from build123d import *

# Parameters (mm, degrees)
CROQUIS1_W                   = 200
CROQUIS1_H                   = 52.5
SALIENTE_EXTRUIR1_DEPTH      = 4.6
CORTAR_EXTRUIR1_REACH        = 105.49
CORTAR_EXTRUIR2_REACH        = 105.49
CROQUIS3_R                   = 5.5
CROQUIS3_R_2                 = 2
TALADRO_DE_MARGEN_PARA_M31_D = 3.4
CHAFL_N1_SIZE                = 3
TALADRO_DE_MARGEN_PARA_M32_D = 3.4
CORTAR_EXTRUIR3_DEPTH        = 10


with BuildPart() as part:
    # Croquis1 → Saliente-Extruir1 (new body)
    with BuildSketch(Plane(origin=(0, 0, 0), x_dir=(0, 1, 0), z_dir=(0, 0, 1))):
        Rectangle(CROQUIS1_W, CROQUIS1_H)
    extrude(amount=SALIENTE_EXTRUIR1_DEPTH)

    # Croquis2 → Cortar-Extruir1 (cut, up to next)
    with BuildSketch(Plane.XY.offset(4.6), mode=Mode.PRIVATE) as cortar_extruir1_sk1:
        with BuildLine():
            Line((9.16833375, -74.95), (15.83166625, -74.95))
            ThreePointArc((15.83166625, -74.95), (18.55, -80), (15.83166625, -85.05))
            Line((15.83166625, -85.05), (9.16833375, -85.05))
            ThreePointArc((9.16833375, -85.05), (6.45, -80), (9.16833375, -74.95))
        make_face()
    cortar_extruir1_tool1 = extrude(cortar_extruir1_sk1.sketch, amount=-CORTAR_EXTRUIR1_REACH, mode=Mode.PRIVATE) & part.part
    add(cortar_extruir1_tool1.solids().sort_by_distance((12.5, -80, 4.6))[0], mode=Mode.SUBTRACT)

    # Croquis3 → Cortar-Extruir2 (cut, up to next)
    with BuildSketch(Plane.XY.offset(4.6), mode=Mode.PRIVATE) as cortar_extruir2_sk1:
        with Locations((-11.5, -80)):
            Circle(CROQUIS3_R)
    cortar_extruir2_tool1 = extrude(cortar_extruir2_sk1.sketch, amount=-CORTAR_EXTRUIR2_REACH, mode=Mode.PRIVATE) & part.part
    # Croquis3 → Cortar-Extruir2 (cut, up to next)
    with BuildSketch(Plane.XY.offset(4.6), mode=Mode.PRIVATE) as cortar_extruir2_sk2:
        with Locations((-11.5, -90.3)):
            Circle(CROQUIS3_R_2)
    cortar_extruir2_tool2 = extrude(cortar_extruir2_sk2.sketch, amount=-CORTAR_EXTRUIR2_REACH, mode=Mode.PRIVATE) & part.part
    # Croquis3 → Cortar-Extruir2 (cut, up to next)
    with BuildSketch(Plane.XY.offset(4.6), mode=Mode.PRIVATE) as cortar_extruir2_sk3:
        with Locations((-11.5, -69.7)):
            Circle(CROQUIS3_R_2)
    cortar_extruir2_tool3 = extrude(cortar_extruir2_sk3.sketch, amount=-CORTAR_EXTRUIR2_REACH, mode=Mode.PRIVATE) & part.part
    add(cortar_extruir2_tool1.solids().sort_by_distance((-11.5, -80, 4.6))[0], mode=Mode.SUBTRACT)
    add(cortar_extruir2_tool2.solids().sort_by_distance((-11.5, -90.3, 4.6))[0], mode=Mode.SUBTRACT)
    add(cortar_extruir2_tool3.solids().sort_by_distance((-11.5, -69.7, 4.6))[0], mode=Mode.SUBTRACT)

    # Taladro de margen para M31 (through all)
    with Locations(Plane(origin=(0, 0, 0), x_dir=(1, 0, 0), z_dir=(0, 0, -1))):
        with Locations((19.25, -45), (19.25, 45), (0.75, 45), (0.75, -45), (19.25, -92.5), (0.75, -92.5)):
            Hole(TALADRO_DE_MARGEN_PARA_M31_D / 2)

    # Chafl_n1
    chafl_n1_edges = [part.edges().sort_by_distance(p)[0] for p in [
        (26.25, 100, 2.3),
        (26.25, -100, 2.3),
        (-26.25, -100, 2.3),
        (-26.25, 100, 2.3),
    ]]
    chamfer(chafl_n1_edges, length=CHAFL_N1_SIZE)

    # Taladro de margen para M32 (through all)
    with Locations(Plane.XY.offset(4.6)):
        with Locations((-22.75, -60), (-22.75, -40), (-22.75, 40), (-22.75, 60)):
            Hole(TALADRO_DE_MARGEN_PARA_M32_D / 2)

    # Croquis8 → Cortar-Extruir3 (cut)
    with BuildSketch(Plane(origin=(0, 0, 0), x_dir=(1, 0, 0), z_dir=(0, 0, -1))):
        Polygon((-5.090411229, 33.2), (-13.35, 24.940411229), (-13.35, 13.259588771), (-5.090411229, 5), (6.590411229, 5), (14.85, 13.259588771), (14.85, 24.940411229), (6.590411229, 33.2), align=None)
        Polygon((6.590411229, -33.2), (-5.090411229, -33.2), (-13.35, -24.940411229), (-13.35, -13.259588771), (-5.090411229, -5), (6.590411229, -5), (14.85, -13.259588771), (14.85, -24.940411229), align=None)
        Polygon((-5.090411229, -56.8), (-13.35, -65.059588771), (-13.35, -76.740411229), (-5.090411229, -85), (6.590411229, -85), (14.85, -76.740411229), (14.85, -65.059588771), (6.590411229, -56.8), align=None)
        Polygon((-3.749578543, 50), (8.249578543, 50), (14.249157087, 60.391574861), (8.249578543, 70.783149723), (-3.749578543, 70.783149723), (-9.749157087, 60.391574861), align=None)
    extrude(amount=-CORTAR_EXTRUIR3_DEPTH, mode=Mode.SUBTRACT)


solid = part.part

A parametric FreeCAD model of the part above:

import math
import FreeCAD as App
import Part
import Sketcher
Q = App.Units.Quantity


def edges_at(feature, points):
    """Names of the edges that pass closest to the given points."""
    edges = feature.Shape.Edges
    near = lambda p: min(range(len(edges)), key=lambda i: edges[i].distToShape(Part.Vertex(*p))[0])
    return sorted({f"Edge{near(p) + 1}" for p in points})


def add_polygon(sketch, points):
    """Adds a closed chain of lines whose ends are joined by coincident constraints."""
    first, n = sketch.GeometryCount, len(points)
    for a, b in zip(points, points[1:] + points[:1]):
        sketch.addGeometry(Part.LineSegment(App.Vector(*a, 0), App.Vector(*b, 0)), False)
    for i in range(n):
        sketch.addConstraint(Sketcher.Constraint("Coincident", first + i, 2, first + (i + 1) % n, 1))

doc = App.newDocument("Part")
body = doc.addObject("PartDesign::Body", "Body")

# Sketch on XY plane
sketch1 = doc.addObject("Sketcher::SketchObject", "Sketch")
body.addObject(sketch1)
sketch1.AttachmentSupport = (doc.XY_Plane, [""])
sketch1.MapMode = "FlatFace"
add_polygon(sketch1, [(-26.25, -100), (26.25, -100), (26.25, 100), (-26.25, 100)])  # lines 0-3
sketch1.addConstraint([
    Sketcher.Constraint("Horizontal", 0),
    Sketcher.Constraint("Vertical", 1),
    Sketcher.Constraint("Horizontal", 2),
    Sketcher.Constraint("Vertical", 3),
    Sketcher.Constraint("Symmetric", 0, 2, 2, 2, -1, 1),
    Sketcher.Constraint("DistanceY", 1, 1, 1, 2, Q("200 mm")),
    Sketcher.Constraint("DistanceX", 0, 1, 0, 2, Q("52.5 mm")),
])
pad1 = doc.addObject("PartDesign::Pad", "Pad")
body.addObject(pad1)
pad1.Profile = sketch1
pad1.Length = 4.6

# Sketch on XY plane
sketch2 = doc.addObject("Sketcher::SketchObject", "Sketch001")
body.addObject(sketch2)
sketch2.AttachmentSupport = (doc.XY_Plane, [""])
sketch2.MapMode = "FlatFace"
sketch2.AttachmentOffset = App.Placement(App.Vector(0, 0, 4.6), App.Rotation())
sketch2.addGeometry([
    Part.LineSegment(App.Vector(15.831666, -74.95, 0), App.Vector(9.168334, -74.95, 0)),
    Part.ArcOfCircle(Part.Circle(App.Vector(12.5, -80, 0), App.Vector(0, 0, 1), 6.05), math.radians(123.414269), math.radians(236.585731)),
    Part.LineSegment(App.Vector(9.168334, -85.05, 0), App.Vector(15.831666, -85.05, 0)),
    Part.ArcOfCircle(Part.Circle(App.Vector(12.5, -80, 0), App.Vector(0, 0, 1), 6.05), math.radians(-56.585731), math.radians(56.585731)),
], False)
sketch2.addConstraint([
    Sketcher.Constraint("Coincident", 0, 2, 1, 1),
    Sketcher.Constraint("Coincident", 1, 2, 2, 1),
    Sketcher.Constraint("Coincident", 2, 2, 3, 1),
    Sketcher.Constraint("Coincident", 3, 2, 0, 1),
    Sketcher.Constraint("Horizontal", 0),
    Sketcher.Constraint("Horizontal", 2),
    Sketcher.Constraint("Coincident", 3, 3, 1, 3),
    Sketcher.Constraint("Equal", 1, 3),
    Sketcher.Constraint("Vertical", 0, 2, 1, 2),
    Sketcher.Constraint("Radius", 1, Q("6.05 mm")),
    Sketcher.Constraint("DistanceY", 1, 3, -1, 1, Q("80 mm")),
    Sketcher.Constraint("DistanceX", -1, 1, 1, 3, Q("12.5 mm")),
    Sketcher.Constraint("DistanceY", 1, 2, 0, 2, Q("10.1 mm")),
])
pocket1 = doc.addObject("PartDesign::Pocket", "Pocket")
body.addObject(pocket1)
pocket1.Profile = sketch2
pocket1.Type = "UpToFirst"

# Sketch on XY plane
sketch3 = doc.addObject("Sketcher::SketchObject", "Sketch002")
body.addObject(sketch3)
sketch3.AttachmentSupport = (doc.XY_Plane, [""])
sketch3.MapMode = "FlatFace"
sketch3.AttachmentOffset = App.Placement(App.Vector(0, 0, 4.6), App.Rotation())
sketch3.addGeometry(Part.Circle(App.Vector(-11.5, -80, 0), App.Vector(0, 0, 1), 5.5), False)
sketch3.addConstraint([
    Sketcher.Constraint("Diameter", 0, Q("11 mm")),
    Sketcher.Constraint("DistanceY", 0, 3, -1, 1, Q("80 mm")),
    Sketcher.Constraint("DistanceX", 0, 3, -1, 1, Q("11.5 mm")),
])
pocket2 = doc.addObject("PartDesign::Pocket", "Pocket001")
body.addObject(pocket2)
pocket2.Profile = sketch3
pocket2.Type = "UpToFirst"

# Sketch on XY plane
sketch4 = doc.addObject("Sketcher::SketchObject", "Sketch003")
body.addObject(sketch4)
sketch4.AttachmentSupport = (doc.XY_Plane, [""])
sketch4.MapMode = "FlatFace"
sketch4.AttachmentOffset = App.Placement(App.Vector(0, 0, 4.6), App.Rotation())
sketch4.addGeometry(Part.Circle(App.Vector(-11.5, -90.3, 0), App.Vector(0, 0, 1), 2), False)
sketch4.addConstraint([
    Sketcher.Constraint("Diameter", 0, Q("4 mm")),
    Sketcher.Constraint("DistanceX", 0, 3, -1, 1, Q("11.5 mm")),
    Sketcher.Constraint("DistanceY", 0, 3, -1, 1, Q("90.3 mm")),
])
pocket3 = doc.addObject("PartDesign::Pocket", "Pocket002")
body.addObject(pocket3)
pocket3.Profile = sketch4
pocket3.Type = "UpToFirst"

# Sketch on XY plane
sketch5 = doc.addObject("Sketcher::SketchObject", "Sketch004")
body.addObject(sketch5)
sketch5.AttachmentSupport = (doc.XY_Plane, [""])
sketch5.MapMode = "FlatFace"
sketch5.AttachmentOffset = App.Placement(App.Vector(0, 0, 4.6), App.Rotation())
sketch5.addGeometry(Part.Circle(App.Vector(-11.5, -69.7, 0), App.Vector(0, 0, 1), 2), False)
sketch5.addConstraint([
    Sketcher.Constraint("Diameter", 0, Q("4 mm")),
    Sketcher.Constraint("DistanceX", 0, 3, -1, 1, Q("11.5 mm")),
    Sketcher.Constraint("DistanceY", 0, 3, -1, 1, Q("69.7 mm")),
])
pocket4 = doc.addObject("PartDesign::Pocket", "Pocket003")
body.addObject(pocket4)
pocket4.Profile = sketch5
pocket4.Type = "UpToFirst"

# Sketch on XY plane
sketch6 = doc.addObject("Sketcher::SketchObject", "Sketch005")
body.addObject(sketch6)
sketch6.AttachmentSupport = (doc.XY_Plane, [""])
sketch6.MapMode = "FlatFace"
sketch6.addGeometry([
    Part.Circle(App.Vector(19.25, 45, 0), App.Vector(0, 0, 1), 1.7),  # 0
    Part.Circle(App.Vector(19.25, -45, 0), App.Vector(0, 0, 1), 1.7),  # 1
    Part.Circle(App.Vector(0.75, -45, 0), App.Vector(0, 0, 1), 1.7),  # 2
    Part.Circle(App.Vector(0.75, 45, 0), App.Vector(0, 0, 1), 1.7),  # 3
    Part.Circle(App.Vector(19.25, 92.5, 0), App.Vector(0, 0, 1), 1.7),  # 4
    Part.Circle(App.Vector(0.75, 92.5, 0), App.Vector(0, 0, 1), 1.7),  # 5
], False)
sketch6.addConstraint([
    Sketcher.Constraint("Equal", 0, 1),
    Sketcher.Constraint("Equal", 1, 2),
    Sketcher.Constraint("Equal", 2, 3),
    Sketcher.Constraint("Equal", 3, 4),
    Sketcher.Constraint("Equal", 4, 5),
    Sketcher.Constraint("Symmetric", 0, 3, 1, 3, -1),
    Sketcher.Constraint("Symmetric", 2, 3, 3, 3, -1),
    Sketcher.Constraint("Horizontal", 1, 3, 2, 3),
    Sketcher.Constraint("Horizontal", 4, 3, 5, 3),
    Sketcher.Constraint("Vertical", 1, 3, 4, 3),
    Sketcher.Constraint("Vertical", 3, 3, 5, 3),
    Sketcher.Constraint("Diameter", 0, Q("3.4 mm")),
    Sketcher.Constraint("DistanceY", -1, 1, 0, 3, Q("45 mm")),
    Sketcher.Constraint("DistanceY", -1, 1, 4, 3, Q("92.5 mm")),
    Sketcher.Constraint("DistanceX", 2, 3, 1, 3, Q("18.5 mm")),
    Sketcher.Constraint("DistanceX", -1, 1, 0, 3, Q("19.25 mm")),
])
doc.recompute()
hole = doc.addObject("PartDesign::Hole", "Hole")
body.addObject(hole)
hole.Profile = sketch6
hole.ThreadType = "None"
hole.Diameter = 3.4
hole.DepthType = "ThroughAll"
hole.Reversed = True
doc.recompute()

chamfer = doc.addObject("PartDesign::Chamfer", "Chamfer")
body.addObject(chamfer)
chamfer.Base = (hole, edges_at(hole, [
    (26.25, 100, 2.3),
    (26.25, -100, 2.3),
    (-26.25, -100, 2.3),
    (-26.25, 100, 2.3),
]))
chamfer.Size = 3

# Sketch on XY plane
sketch7 = doc.addObject("Sketcher::SketchObject", "Sketch006")
body.addObject(sketch7)
sketch7.AttachmentSupport = (doc.XY_Plane, [""])
sketch7.MapMode = "FlatFace"
sketch7.AttachmentOffset = App.Placement(App.Vector(0, 0, 4.6), App.Rotation())
sketch7.addGeometry([
    Part.Circle(App.Vector(-22.75, -60, 0), App.Vector(0, 0, 1), 1.7),
    Part.Circle(App.Vector(-22.75, -40, 0), App.Vector(0, 0, 1), 1.7),
    Part.Circle(App.Vector(-22.75, 40, 0), App.Vector(0, 0, 1), 1.7),
    Part.Circle(App.Vector(-22.75, 60, 0), App.Vector(0, 0, 1), 1.7),
], False)
sketch7.addConstraint([
    Sketcher.Constraint("Equal", 0, 1),
    Sketcher.Constraint("Equal", 1, 2),
    Sketcher.Constraint("Equal", 2, 3),
    Sketcher.Constraint("Symmetric", 1, 3, 2, 3, -1),
    Sketcher.Constraint("Symmetric", 0, 3, 3, 3, -1),
    Sketcher.Constraint("Vertical", 0, 3, 1, 3),
    Sketcher.Constraint("Diameter", 0, Q("3.4 mm")),
    Sketcher.Constraint("DistanceY", 0, 3, -1, 1, Q("60 mm")),
    Sketcher.Constraint("DistanceY", 1, 3, -1, 1, Q("40 mm")),
    Sketcher.Constraint("DistanceX", 0, 3, -1, 1, Q("22.75 mm")),
])
doc.recompute()
hole2 = doc.addObject("PartDesign::Hole", "Hole001")
body.addObject(hole2)
hole2.Profile = sketch7
hole2.ThreadType = "None"
hole2.Diameter = 3.4
hole2.DepthType = "ThroughAll"

# Sketch on XY plane
sketch8 = doc.addObject("Sketcher::SketchObject", "Sketch007")
body.addObject(sketch8)
sketch8.AttachmentSupport = (doc.XY_Plane, [""])
sketch8.MapMode = "FlatFace"
add_polygon(sketch8, [(-5.090411, -33.2), (-13.35, -24.940411), (-13.35, -13.259589), (-5.090411, -5), (6.590411, -5), (14.85, -13.259589), (14.85, -24.940411), (6.590411, -33.2)])  # lines 0-7
add_polygon(sketch8, [(-5.090411, 33.2), (6.590411, 33.2), (14.85, 24.940411), (14.85, 13.259589), (6.590411, 5), (-5.090411, 5), (-13.35, 13.259589), (-13.35, 24.940411)])  # lines 8-15
add_polygon(sketch8, [(-5.090411, 56.8), (-13.35, 65.059589), (-13.35, 76.740411), (-5.090411, 85), (6.590411, 85), (14.85, 76.740411), (14.85, 65.059589), (6.590411, 56.8)])  # lines 16-23
add_polygon(sketch8, [(-3.749579, -50), (8.249579, -50), (14.249157, -60.391575), (8.249579, -70.78315), (-3.749579, -70.78315), (-9.749157, -60.391575)])  # lines 24-29
sketch8.addConstraint([
    Sketcher.Constraint("Vertical", 1),
    Sketcher.Constraint("Horizontal", 3),
    Sketcher.Constraint("Vertical", 5),
    Sketcher.Constraint("Horizontal", 7),
    Sketcher.Constraint("Horizontal", 8),
    Sketcher.Constraint("Vertical", 10),
    Sketcher.Constraint("Horizontal", 12),
    Sketcher.Constraint("Vertical", 14),
    Sketcher.Constraint("Vertical", 17),
    Sketcher.Constraint("Horizontal", 19),
    Sketcher.Constraint("Vertical", 21),
    Sketcher.Constraint("Horizontal", 23),
    Sketcher.Constraint("Horizontal", 24),
    Sketcher.Constraint("Horizontal", 27),
    Sketcher.Constraint("Symmetric", 6, 2, 8, 2, -1),
    Sketcher.Constraint("Symmetric", 5, 2, 9, 2, -1),
    Sketcher.Constraint("Symmetric", 3, 2, 11, 2, -1),
    Sketcher.Constraint("Symmetric", 1, 2, 13, 2, -1),
    Sketcher.Constraint("Perpendicular", 0, 2),
    Sketcher.Constraint("Perpendicular", 2, 4),
    Sketcher.Constraint("Perpendicular", 4, 6),
    Sketcher.Constraint("Perpendicular", 6, 9),
    Sketcher.Constraint("Perpendicular", 9, 11),
    Sketcher.Constraint("Perpendicular", 11, 13),
    Sketcher.Constraint("Perpendicular", 13, 15),
    Sketcher.Constraint("Perpendicular", 15, 16),
    Sketcher.Constraint("Perpendicular", 16, 18),
    Sketcher.Constraint("Perpendicular", 18, 20),
    Sketcher.Constraint("Perpendicular", 20, 22),
    Sketcher.Constraint("Parallel", 25, 28),
    Sketcher.Constraint("Parallel", 26, 29),
    Sketcher.Constraint("Horizontal", 1, 2, 4, 2),
    Sketcher.Constraint("Horizontal", 0, 2, 5, 2),
    Sketcher.Constraint("Horizontal", 9, 2, 14, 2),
    Sketcher.Constraint("Horizontal", 17, 2, 20, 2),
    Sketcher.Constraint("Horizontal", 16, 2, 21, 2),
    Sketcher.Constraint("Horizontal", 25, 2, 28, 2),
    Sketcher.Constraint("Vertical", 3, 2, 6, 2),
    Sketcher.Constraint("Vertical", 14, 2, 16, 2),
    Sketcher.Constraint("Vertical", 15, 2, 18, 2),
    Sketcher.Constraint("Vertical", 11, 2, 19, 2),
    Sketcher.Constraint("Vertical", 19, 2, 22, 2),
    Sketcher.Constraint("Vertical", 24, 2, 26, 2),
    Sketcher.Constraint("Vertical", 27, 2, 29, 2),
    Sketcher.Constraint("Equal", 23, 1),
    Sketcher.Constraint("Equal", 14, 17),
    Sketcher.Constraint("Angle", 25, Q("-60 deg")),
    Sketcher.Constraint("DistanceY", 2, 2, -1, 1, Q("5 mm")),
    Sketcher.Constraint("DistanceY", -1, 1, 18, 2, Q("85 mm")),
    Sketcher.Constraint("DistanceY", 24, 2, -1, 1, Q("50 mm")),
    Sketcher.Constraint("DistanceY", 6, 2, -1, 1, Q("33.2 mm")),
    Sketcher.Constraint("DistanceX", 0, 2, -1, 1, Q("13.35 mm")),
    Sketcher.Constraint("DistanceX", 3, 1, 3, 2, Q("11.680822 mm")),
    Sketcher.Constraint("DistanceX", 24, 1, 24, 2, Q("11.999157 mm")),
    Sketcher.Constraint("DistanceX", -1, 1, 24, 2, Q("8.249579 mm")),
    Sketcher.Constraint("DistanceY", 26, 2, -1, 1, Q("70.78315 mm")),
])
pocket5 = doc.addObject("PartDesign::Pocket", "Pocket004")
body.addObject(pocket5)
pocket5.Profile = sketch8
pocket5.Length = 10
pocket5.Reversed = True

doc.recompute()
